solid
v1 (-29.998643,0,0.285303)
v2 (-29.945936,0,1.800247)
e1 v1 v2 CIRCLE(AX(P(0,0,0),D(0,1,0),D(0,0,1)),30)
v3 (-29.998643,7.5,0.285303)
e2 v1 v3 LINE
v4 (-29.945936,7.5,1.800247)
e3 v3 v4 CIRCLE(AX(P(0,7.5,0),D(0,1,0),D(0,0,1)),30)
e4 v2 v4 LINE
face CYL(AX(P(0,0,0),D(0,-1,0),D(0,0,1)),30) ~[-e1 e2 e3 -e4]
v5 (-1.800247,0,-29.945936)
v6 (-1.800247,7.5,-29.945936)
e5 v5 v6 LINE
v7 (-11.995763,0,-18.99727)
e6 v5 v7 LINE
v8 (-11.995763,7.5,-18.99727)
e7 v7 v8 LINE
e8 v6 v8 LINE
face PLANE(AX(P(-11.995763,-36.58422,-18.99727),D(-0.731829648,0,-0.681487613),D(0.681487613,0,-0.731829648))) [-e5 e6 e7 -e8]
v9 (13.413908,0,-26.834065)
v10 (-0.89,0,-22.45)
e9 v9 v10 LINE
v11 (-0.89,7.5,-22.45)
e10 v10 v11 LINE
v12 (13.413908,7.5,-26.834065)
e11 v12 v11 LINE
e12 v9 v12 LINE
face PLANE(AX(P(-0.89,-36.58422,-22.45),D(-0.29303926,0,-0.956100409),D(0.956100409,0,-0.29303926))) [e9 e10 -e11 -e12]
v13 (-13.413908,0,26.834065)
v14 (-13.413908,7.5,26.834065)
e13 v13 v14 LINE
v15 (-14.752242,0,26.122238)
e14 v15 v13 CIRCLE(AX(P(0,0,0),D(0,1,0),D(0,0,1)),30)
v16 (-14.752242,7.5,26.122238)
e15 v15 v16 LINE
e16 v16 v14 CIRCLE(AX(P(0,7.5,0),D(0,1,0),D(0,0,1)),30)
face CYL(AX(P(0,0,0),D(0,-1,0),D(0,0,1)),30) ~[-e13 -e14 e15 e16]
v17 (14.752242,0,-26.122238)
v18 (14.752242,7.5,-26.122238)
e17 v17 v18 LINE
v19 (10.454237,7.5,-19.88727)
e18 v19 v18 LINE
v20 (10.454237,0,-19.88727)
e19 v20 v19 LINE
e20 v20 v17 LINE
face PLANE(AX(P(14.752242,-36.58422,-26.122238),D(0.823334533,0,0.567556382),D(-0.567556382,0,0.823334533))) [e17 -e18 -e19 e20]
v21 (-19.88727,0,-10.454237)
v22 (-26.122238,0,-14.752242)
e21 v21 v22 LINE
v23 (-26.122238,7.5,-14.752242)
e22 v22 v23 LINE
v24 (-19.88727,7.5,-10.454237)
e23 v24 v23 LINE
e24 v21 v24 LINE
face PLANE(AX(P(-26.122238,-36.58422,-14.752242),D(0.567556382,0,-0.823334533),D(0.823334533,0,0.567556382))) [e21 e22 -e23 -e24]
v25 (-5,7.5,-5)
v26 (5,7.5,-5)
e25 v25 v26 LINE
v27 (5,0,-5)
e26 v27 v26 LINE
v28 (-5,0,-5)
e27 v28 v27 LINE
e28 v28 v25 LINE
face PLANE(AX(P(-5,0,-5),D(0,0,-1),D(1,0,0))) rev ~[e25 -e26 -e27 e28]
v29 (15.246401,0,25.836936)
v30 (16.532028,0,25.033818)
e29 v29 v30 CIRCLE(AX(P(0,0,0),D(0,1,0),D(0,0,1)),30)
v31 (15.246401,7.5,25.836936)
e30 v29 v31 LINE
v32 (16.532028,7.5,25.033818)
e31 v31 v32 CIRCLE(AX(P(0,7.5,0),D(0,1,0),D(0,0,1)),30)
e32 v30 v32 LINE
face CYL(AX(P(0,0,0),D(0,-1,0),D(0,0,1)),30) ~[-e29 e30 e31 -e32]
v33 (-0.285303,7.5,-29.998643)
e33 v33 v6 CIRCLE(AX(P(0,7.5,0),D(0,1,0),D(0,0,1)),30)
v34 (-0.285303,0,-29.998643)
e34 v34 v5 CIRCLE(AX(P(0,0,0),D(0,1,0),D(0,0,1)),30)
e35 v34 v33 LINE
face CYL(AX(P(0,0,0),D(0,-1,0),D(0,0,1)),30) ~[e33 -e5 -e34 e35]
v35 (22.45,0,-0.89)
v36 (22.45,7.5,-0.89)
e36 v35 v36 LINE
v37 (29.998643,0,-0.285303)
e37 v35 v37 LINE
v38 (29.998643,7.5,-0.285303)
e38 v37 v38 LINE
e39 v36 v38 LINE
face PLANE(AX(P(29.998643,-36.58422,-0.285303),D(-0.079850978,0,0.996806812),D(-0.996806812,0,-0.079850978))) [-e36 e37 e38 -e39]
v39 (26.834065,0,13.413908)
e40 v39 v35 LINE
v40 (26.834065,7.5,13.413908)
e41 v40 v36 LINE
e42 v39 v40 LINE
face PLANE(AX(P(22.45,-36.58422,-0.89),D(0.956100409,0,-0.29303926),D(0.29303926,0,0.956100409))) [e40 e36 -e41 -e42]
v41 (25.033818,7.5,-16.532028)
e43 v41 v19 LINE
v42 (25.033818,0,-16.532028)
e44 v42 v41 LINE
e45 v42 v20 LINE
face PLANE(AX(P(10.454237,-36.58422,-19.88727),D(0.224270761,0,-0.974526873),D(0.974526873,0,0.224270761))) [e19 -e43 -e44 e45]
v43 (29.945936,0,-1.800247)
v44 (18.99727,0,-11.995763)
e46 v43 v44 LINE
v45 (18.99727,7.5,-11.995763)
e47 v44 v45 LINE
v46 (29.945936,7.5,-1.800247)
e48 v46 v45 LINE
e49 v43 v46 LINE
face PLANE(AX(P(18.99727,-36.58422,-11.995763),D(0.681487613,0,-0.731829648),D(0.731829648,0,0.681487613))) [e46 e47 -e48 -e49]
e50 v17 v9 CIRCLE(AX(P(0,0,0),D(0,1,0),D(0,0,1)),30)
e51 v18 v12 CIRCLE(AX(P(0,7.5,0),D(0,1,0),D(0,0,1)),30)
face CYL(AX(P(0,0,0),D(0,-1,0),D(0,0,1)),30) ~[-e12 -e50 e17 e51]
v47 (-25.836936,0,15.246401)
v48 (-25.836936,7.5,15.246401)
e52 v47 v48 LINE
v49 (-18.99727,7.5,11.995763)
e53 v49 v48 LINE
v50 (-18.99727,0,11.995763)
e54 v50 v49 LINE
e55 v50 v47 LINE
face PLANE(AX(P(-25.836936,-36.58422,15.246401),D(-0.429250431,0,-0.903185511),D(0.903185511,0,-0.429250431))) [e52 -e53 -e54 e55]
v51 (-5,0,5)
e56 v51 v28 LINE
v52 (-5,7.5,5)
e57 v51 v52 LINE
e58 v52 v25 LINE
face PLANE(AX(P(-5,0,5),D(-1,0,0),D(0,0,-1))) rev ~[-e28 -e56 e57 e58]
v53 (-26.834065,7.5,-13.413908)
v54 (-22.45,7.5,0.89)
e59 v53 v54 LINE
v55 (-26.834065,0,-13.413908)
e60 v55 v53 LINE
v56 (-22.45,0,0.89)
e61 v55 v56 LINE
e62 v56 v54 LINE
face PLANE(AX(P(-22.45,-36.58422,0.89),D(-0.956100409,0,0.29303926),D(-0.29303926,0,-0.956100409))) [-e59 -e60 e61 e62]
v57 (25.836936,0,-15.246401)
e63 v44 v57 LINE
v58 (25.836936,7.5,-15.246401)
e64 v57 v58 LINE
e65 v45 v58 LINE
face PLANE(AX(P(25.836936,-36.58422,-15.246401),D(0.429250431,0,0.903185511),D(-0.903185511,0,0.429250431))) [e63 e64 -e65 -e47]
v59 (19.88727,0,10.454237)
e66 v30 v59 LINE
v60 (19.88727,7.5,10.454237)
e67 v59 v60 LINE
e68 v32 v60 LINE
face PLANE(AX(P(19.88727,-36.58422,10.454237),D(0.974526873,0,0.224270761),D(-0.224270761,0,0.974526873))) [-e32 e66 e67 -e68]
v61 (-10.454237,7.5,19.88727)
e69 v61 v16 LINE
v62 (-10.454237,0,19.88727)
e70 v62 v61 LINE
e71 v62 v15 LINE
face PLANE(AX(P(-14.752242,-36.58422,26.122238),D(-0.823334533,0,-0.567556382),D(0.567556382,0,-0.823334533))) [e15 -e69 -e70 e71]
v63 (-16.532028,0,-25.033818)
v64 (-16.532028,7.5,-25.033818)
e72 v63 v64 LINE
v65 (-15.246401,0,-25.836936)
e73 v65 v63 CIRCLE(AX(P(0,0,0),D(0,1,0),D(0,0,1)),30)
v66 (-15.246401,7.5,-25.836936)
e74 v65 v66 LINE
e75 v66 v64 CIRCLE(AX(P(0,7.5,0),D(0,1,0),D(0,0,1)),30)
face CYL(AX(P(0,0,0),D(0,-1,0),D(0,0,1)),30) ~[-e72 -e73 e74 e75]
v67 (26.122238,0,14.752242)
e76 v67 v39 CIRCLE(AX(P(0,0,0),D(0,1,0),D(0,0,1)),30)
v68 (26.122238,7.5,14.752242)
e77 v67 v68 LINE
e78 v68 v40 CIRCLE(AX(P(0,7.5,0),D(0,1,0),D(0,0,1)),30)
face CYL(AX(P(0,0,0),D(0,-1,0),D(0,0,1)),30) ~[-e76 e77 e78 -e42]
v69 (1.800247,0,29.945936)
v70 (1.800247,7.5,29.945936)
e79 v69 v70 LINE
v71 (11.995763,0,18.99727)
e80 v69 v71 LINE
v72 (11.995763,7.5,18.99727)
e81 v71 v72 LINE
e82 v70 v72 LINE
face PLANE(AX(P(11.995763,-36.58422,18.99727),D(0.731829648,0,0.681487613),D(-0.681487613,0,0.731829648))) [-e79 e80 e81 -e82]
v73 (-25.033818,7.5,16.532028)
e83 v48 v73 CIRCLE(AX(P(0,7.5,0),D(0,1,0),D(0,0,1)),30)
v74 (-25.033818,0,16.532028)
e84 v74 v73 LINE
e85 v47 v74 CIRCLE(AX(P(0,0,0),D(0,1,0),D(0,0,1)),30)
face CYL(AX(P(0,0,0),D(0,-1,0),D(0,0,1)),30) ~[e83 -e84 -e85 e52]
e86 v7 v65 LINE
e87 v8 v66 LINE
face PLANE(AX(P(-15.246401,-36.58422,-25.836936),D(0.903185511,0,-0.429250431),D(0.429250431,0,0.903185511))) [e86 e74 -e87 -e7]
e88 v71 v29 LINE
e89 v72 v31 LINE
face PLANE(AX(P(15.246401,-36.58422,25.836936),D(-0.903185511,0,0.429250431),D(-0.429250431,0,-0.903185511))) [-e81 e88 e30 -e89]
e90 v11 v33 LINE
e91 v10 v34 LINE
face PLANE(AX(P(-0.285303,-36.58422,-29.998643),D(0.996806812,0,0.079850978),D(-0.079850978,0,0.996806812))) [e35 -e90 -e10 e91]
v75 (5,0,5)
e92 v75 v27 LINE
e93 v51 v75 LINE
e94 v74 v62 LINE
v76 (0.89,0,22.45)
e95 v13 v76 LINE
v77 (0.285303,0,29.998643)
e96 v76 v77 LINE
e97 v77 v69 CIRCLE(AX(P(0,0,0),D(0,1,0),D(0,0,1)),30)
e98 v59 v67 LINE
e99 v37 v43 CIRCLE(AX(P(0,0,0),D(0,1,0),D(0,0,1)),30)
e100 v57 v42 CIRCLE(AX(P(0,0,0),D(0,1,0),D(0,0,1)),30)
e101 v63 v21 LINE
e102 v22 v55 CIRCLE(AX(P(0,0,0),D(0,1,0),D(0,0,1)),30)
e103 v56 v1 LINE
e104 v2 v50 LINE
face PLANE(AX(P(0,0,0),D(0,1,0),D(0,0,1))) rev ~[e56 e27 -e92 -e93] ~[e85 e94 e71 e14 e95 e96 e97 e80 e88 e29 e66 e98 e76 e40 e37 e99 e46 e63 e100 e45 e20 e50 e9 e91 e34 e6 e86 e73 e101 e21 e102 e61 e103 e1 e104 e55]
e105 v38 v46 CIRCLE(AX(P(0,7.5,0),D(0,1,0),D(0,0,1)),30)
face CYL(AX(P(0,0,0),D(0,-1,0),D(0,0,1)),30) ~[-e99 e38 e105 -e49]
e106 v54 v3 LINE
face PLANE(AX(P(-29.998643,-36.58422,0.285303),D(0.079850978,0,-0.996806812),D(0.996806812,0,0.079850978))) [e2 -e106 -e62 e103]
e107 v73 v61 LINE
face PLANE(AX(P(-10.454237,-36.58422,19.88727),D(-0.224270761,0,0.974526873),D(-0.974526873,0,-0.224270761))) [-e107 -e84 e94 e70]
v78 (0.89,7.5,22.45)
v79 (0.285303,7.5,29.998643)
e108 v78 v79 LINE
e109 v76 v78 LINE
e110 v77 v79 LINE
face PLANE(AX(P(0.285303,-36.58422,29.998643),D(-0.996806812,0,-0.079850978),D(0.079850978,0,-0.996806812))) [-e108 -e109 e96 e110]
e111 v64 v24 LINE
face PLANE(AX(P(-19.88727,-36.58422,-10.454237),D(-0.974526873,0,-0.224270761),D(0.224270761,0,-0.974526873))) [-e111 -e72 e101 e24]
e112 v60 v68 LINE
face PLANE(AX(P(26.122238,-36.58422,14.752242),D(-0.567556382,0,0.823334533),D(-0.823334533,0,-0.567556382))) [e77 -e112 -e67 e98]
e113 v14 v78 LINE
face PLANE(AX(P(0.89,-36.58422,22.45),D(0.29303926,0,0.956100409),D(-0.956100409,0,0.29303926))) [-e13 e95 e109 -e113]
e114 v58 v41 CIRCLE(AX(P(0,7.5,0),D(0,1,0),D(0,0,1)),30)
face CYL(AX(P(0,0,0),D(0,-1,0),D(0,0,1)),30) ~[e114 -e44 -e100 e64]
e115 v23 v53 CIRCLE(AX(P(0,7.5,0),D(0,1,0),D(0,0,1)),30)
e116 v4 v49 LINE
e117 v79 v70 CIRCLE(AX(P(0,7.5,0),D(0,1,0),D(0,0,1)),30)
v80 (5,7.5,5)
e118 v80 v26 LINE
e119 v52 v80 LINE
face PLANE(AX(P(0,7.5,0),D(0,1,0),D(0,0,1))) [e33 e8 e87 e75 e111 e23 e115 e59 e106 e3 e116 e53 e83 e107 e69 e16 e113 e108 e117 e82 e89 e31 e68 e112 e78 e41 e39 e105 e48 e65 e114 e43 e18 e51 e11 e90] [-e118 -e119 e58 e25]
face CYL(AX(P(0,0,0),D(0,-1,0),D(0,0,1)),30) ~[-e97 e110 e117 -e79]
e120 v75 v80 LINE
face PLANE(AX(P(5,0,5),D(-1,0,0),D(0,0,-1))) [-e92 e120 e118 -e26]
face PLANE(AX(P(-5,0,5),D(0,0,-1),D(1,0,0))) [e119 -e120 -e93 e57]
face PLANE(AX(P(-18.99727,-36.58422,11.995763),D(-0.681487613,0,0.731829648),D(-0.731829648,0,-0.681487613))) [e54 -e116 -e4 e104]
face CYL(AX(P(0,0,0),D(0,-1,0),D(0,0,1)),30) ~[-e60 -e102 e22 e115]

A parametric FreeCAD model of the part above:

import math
import FreeCAD as App
import Part
import Sketcher
Q = App.Units.Quantity


def add_polygon(sketch, points):
    """Adds a closed chain of lines whose ends are joined by coincident constraints."""
    first, n = sketch.GeometryCount, len(points)
    for a, b in zip(points, points[1:] + points[:1]):
        sketch.addGeometry(Part.LineSegment(App.Vector(*a, 0), App.Vector(*b, 0)), False)
    for i in range(n):
        sketch.addConstraint(Sketcher.Constraint("Coincident", first + i, 2, first + (i + 1) % n, 1))

doc = App.newDocument("Part")
body = doc.addObject("PartDesign::Body", "Body")

# Sketch on XZ plane
sketch1 = doc.addObject("Sketcher::SketchObject", "Sketch")
body.addObject(sketch1)
sketch1.AttachmentSupport = (doc.XZ_Plane, [""])
sketch1.MapMode = "FlatFace"
sketch1.addGeometry(Part.Circle(App.Vector(0, 0, 0), App.Vector(0, 0, 1), 30), False)  # 0
add_polygon(sketch1, [(5, 5), (-5, 5), (-5, -5), (5, -5)])  # lines 1-4
sketch1.addConstraint([
    Sketcher.Constraint("Horizontal", 1),
    Sketcher.Constraint("Vertical", 2),
    Sketcher.Constraint("Horizontal", 3),
    Sketcher.Constraint("Vertical", 4),
    Sketcher.Constraint("Coincident", 0, 3, -1, 1),
    Sketcher.Constraint("Symmetric", 1, 2, 3, 2, -1, 1),
    Sketcher.Constraint("Equal", 3, 2),
    Sketcher.Constraint("Diameter", 0, 60.0),
    Sketcher.Constraint("DistanceX", 1, 2, 1, 1, 10.0),
])
pad1 = doc.addObject("PartDesign::Pad", "Pad")
body.addObject(pad1)
pad1.Profile = sketch1
pad1.Length = 7.5
pad1.Reversed = True

# Sketch on XZ plane
sketch2 = doc.addObject("Sketcher::SketchObject", "Sketch001")
body.addObject(sketch2)
sketch2.AttachmentSupport = (doc.XZ_Plane, [""])
sketch2.MapMode = "FlatFace"
sketch2.AttachmentOffset = App.Placement(App.Vector(0, 0, -7.5), App.Rotation())
sketch2.addGeometry([
    Part.LineSegment(App.Vector(-19.88727, -10.454237, 0), App.Vector(-16.532028, -25.033818, 0)),  # 0
    Part.ArcOfCircle(Part.Circle(App.Vector(0, 0, 0), App.Vector(0, 0, 1), 30), math.radians(-150.544896), math.radians(-123.440286)),  # 1
    Part.LineSegment(App.Vector(-26.122238, -14.752242, 0), App.Vector(-19.88727, -10.454237, 0)),  # 2
    Part.LineSegment(App.Vector(-22.45, 0.89, 0), App.Vector(-26.834065, -13.413908, 0)),  # 3
    Part.ArcOfCircle(Part.Circle(App.Vector(0, 0, 0), App.Vector(0, 0, 1), 30), math.radians(179.455104), math.radians(206.559714)),  # 4
    Part.LineSegment(App.Vector(-29.998643, 0.285303, 0), App.Vector(-22.45, 0.89, 0)),  # 5
    Part.LineSegment(App.Vector(-18.99727, 11.995763, 0), App.Vector(-29.945936, 1.800247, 0)),  # 6
    Part.ArcOfCircle(Part.Circle(App.Vector(0, 0, 0), App.Vector(0, 0, 1), 30), math.radians(149.455104), math.radians(176.559714)),  # 7
    Part.LineSegment(App.Vector(-25.836936, 15.246401, 0), App.Vector(-18.99727, 11.995763, 0)),  # 8
    Part.LineSegment(App.Vector(-10.454237, 19.88727, 0), App.Vector(-25.033818, 16.532028, 0)),  # 9
    Part.ArcOfCircle(Part.Circle(App.Vector(0, 0, 0), App.Vector(0, 0, 1), 30), math.radians(119.455104), math.radians(146.559714)),  # 10
    Part.LineSegment(App.Vector(-14.752242, 26.122238, 0), App.Vector(-10.454237, 19.88727, 0)),  # 11
    Part.ArcOfCircle(Part.Circle(App.Vector(0, 0, 0), App.Vector(0, 0, 1), 30), math.radians(89.455104), math.radians(116.559714)),  # 12
    Part.LineSegment(App.Vector(0.285303, 29.998643, 0), App.Vector(0.89, 22.45, 0)),  # 13
    Part.LineSegment(App.Vector(0.89, 22.45, 0), App.Vector(-13.413908, 26.834065, 0)),  # 14
    Part.ArcOfCircle(Part.Circle(App.Vector(0, 0, 0), App.Vector(0, 0, 1), 30), math.radians(59.455104), math.radians(86.559714)),  # 15
    Part.LineSegment(App.Vector(15.246401, 25.836936, 0), App.Vector(11.995763, 18.99727, 0)),  # 16
    Part.LineSegment(App.Vector(11.995763, 18.99727, 0), App.Vector(1.800247, 29.945936, 0)),  # 17
    Part.ArcOfCircle(Part.Circle(App.Vector(0, 0, 0), App.Vector(0, 0, 1), 30), math.radians(29.455104), math.radians(56.559714)),  # 18
    Part.LineSegment(App.Vector(26.122238, 14.752242, 0), App.Vector(19.88727, 10.454237, 0)),  # 19
    Part.LineSegment(App.Vector(19.88727, 10.454237, 0), App.Vector(16.532028, 25.033818, 0)),  # 20
    Part.ArcOfCircle(Part.Circle(App.Vector(-0.000013, 0, 0), App.Vector(0, 0, 1), 30.000013), math.radians(-0.544896), math.radians(0)),  # 21
    Part.LineSegment(App.Vector(29.998643, -0.285303, 0), App.Vector(22.45, -0.89, 0)),  # 22
    Part.LineSegment(App.Vector(22.45, -0.89, 0), App.Vector(26.834065, 13.413908, 0)),  # 23
    Part.ArcOfCircle(Part.Circle(App.Vector(0, 0, 0), App.Vector(0, 0, 1), 30), math.radians(0), math.radians(26.559714)),  # 24
    Part.ArcOfCircle(Part.Circle(App.Vector(0, 0, 0), App.Vector(0, 0, 1), 30), math.radians(-30.544896), math.radians(-3.440286)),  # 25
    Part.LineSegment(App.Vector(25.836936, -15.246401, 0), App.Vector(18.99727, -11.995763, 0)),  # 26
    Part.LineSegment(App.Vector(18.99727, -11.995763, 0), App.Vector(29.945936, -1.800247, 0)),  # 27
    Part.LineSegment(App.Vector(14.752242, -26.122238, 0), App.Vector(10.454237, -19.88727, 0)),  # 28
    Part.LineSegment(App.Vector(10.454237, -19.88727, 0), App.Vector(25.033818, -16.532028, 0)),  # 29
    Part.ArcOfCircle(Part.Circle(App.Vector(0, 0, 0), App.Vector(0, 0, 1), 30), math.radians(-60.544896), math.radians(-33.440286)),  # 30
    Part.LineSegment(App.Vector(-0.89, -22.45, 0), App.Vector(13.413908, -26.834065, 0)),  # 31
    Part.ArcOfCircle(Part.Circle(App.Vector(0, 0, 0), App.Vector(0, 0, 1), 30), math.radians(-90.544896), math.radians(-63.440286)),  # 32
    Part.LineSegment(App.Vector(-0.285303, -29.998643, 0), App.Vector(-0.89, -22.45, 0)),  # 33
    Part.LineSegment(App.Vector(-11.995763, -18.99727, 0), App.Vector(-1.800247, -29.945936, 0)),  # 34
    Part.ArcOfCircle(Part.Circle(App.Vector(0, 0, 0), App.Vector(0, 0, 1), 30), math.radians(-120.544896), math.radians(-93.440286)),  # 35
    Part.LineSegment(App.Vector(-15.246401, -25.836936, 0), App.Vector(-11.995763, -18.99727, 0)),  # 36
], False)
sketch2.addConstraint([
    Sketcher.Constraint("Coincident", 0, 2, 1, 2),
    Sketcher.Constraint("Coincident", 1, 1, 2, 1),
    Sketcher.Constraint("Coincident", 2, 2, 0, 1),
    Sketcher.Constraint("Coincident", 3, 2, 4, 2),
    Sketcher.Constraint("Coincident", 4, 1, 5, 1),
    Sketcher.Constraint("Coincident", 5, 2, 3, 1),
    Sketcher.Constraint("Coincident", 6, 2, 7, 2),
    Sketcher.Constraint("Coincident", 7, 1, 8, 1),
    Sketcher.Constraint("Coincident", 8, 2, 6, 1),
    Sketcher.Constraint("Coincident", 9, 2, 10, 2),
    Sketcher.Constraint("Coincident", 10, 1, 11, 1),
    Sketcher.Constraint("Coincident", 11, 2, 9, 1),
    Sketcher.Constraint("Coincident", 12, 1, 13, 1),
    Sketcher.Constraint("Coincident", 13, 2, 14, 1),
    Sketcher.Constraint("Coincident", 14, 2, 12, 2),
    Sketcher.Constraint("Coincident", 15, 1, 16, 1),
    Sketcher.Constraint("Coincident", 16, 2, 17, 1),
    Sketcher.Constraint("Coincident", 17, 2, 15, 2),
    Sketcher.Constraint("Coincident", 18, 1, 19, 1),
    Sketcher.Constraint("Coincident", 19, 2, 20, 1),
    Sketcher.Constraint("Coincident", 20, 2, 18, 2),
    Sketcher.Constraint("Coincident", 21, 1, 22, 1),
    Sketcher.Constraint("Coincident", 22, 2, 23, 1),
    Sketcher.Constraint("Coincident", 23, 2, 24, 2),
    Sketcher.Constraint("Tangent", 24, 1, 21, 2),
    Sketcher.Constraint("Coincident", 25, 1, 26, 1),
    Sketcher.Constraint("Coincident", 26, 2, 27, 1),
    Sketcher.Constraint("Coincident", 27, 2, 25, 2),
    Sketcher.Constraint("Coincident", 28, 2, 29, 1),
    Sketcher.Constraint("Coincident", 29, 2, 30, 2),
    Sketcher.Constraint("Coincident", 30, 1, 28, 1),
    Sketcher.Constraint("Coincident", 31, 2, 32, 2),
    Sketcher.Constraint("Coincident", 32, 1, 33, 1),
    Sketcher.Constraint("Coincident", 33, 2, 31, 1),
    Sketcher.Constraint("Coincident", 34, 2, 35, 2),
    Sketcher.Constraint("Coincident", 35, 1, 36, 1),
    Sketcher.Constraint("Coincident", 36, 2, 34, 1),
    Sketcher.Constraint("Coincident", 1, 3, -1, 1),
    Sketcher.Constraint("Coincident", 4, 3, -1, 1),
    Sketcher.Constraint("Coincident", 7, 3, -1, 1),
    Sketcher.Constraint("Coincident", 10, 3, -1, 1),
    Sketcher.Constraint("Coincident", 12, 3, -1, 1),
    Sketcher.Constraint("Coincident", 15, 3, -1, 1),
    Sketcher.Constraint("Coincident", 18, 3, -1, 1),
    Sketcher.Constraint("Coincident", 24, 3, -1, 1),
    Sketcher.Constraint("Coincident", 25, 3, -1, 1),
    Sketcher.Constraint("Coincident", 30, 3, -1, 1),
    Sketcher.Constraint("Coincident", 32, 3, -1, 1),
    Sketcher.Constraint("Coincident", 35, 3, -1, 1),
    Sketcher.Constraint("Equal", 1, 4),
    Sketcher.Constraint("Equal", 4, 7),
    Sketcher.Constraint("Equal", 7, 10),
    Sketcher.Constraint("Equal", 10, 12),
    Sketcher.Constraint("Equal", 12, 15),
    Sketcher.Constraint("Equal", 15, 18),
    Sketcher.Constraint("Equal", 18, 24),
    Sketcher.Constraint("Equal", 24, 25),
    Sketcher.Constraint("Equal", 25, 30),
    Sketcher.Constraint("Equal", 30, 32),
    Sketcher.Constraint("Equal", 32, 35),
    Sketcher.Constraint("Symmetric", 2, 2, 19, 2, -1, 1),
    Sketcher.Constraint("Symmetric", 5, 2, 22, 2, -1, 1),
    Sketcher.Constraint("Symmetric", 8, 2, 26, 2, -1, 1),
    Sketcher.Constraint("Symmetric", 11, 2, 28, 2, -1, 1),
    Sketcher.Constraint("Symmetric", 13, 2, 33, 2, -1, 1),
    Sketcher.Constraint("Symmetric", 16, 2, 36, 2, -1, 1),
    Sketcher.Constraint("PointOnObject", 24, 1, -1),
    Sketcher.Constraint("Perpendicular", 0, 9),
    Sketcher.Constraint("Perpendicular", 2, 11),
    Sketcher.Constraint("Perpendicular", 5, 13),
    Sketcher.Constraint("Perpendicular", 3, 14),
    Sketcher.Constraint("Perpendicular", 8, 16),
    Sketcher.Constraint("Perpendicular", 6, 17),
    Sketcher.Constraint("Perpendicular", 11, 19),
    Sketcher.Constraint("Perpendicular", 9, 20),
    Sketcher.Constraint("Perpendicular", 13, 22),
    Sketcher.Constraint("Perpendicular", 14, 23),
    Sketcher.Constraint("Perpendicular", 16, 26),
    Sketcher.Constraint("Perpendicular", 17, 27),
    Sketcher.Constraint("Perpendicular", 19, 28),
    Sketcher.Constraint("Perpendicular", 20, 29),
    Sketcher.Constraint("Perpendicular", 23, 31),
    Sketcher.Constraint("Perpendicular", 22, 33),
    Sketcher.Constraint("Perpendicular", 27, 34),
    Sketcher.Constraint("Perpendicular", 26, 36),
    Sketcher.Constraint("Equal", 0, 3),
    Sketcher.Constraint("Equal", 2, 5),
    Sketcher.Constraint("Equal", 3, 6),
    Sketcher.Constraint("Equal", 5, 8),
    Sketcher.Constraint("Equal", 6, 9),
    Sketcher.Constraint("Equal", 8, 11),
    Sketcher.Constraint("Equal", 11, 13),
    Sketcher.Constraint("Equal", 9, 14),
    Sketcher.Constraint("Equal", 13, 16),
    Sketcher.Constraint("Equal", 14, 17),
    Sketcher.Constraint("Radius", 1, 30.0),
    Sketcher.Constraint("Angle", 0, Q("-77.04 deg")),
    Sketcher.Constraint("Angle", 2, Q("34.58 deg")),
    Sketcher.Constraint("Angle", 3, Q("-107.04 deg")),
    Sketcher.Constraint("Angle", 5, Q("4.58 deg")),
    Sketcher.Constraint("Angle", 6, Q("-137.04 deg")),
    Sketcher.Constraint("Angle", 8, Q("-25.42 deg")),
    Sketcher.Constraint("DistanceX", 5, 2, -1, 1, 22.45),
    Sketcher.Constraint("DistanceY", -1, 1, 5, 2, 0.89),
    Sketcher.Constraint("Radius", 21, 30.000013),
])
pocket1 = doc.addObject("PartDesign::Pocket", "Pocket")
body.addObject(pocket1)
pocket1.Profile = sketch2
pocket1.Type = "ThroughAll"
pocket1.Midplane = True

doc.recompute()
